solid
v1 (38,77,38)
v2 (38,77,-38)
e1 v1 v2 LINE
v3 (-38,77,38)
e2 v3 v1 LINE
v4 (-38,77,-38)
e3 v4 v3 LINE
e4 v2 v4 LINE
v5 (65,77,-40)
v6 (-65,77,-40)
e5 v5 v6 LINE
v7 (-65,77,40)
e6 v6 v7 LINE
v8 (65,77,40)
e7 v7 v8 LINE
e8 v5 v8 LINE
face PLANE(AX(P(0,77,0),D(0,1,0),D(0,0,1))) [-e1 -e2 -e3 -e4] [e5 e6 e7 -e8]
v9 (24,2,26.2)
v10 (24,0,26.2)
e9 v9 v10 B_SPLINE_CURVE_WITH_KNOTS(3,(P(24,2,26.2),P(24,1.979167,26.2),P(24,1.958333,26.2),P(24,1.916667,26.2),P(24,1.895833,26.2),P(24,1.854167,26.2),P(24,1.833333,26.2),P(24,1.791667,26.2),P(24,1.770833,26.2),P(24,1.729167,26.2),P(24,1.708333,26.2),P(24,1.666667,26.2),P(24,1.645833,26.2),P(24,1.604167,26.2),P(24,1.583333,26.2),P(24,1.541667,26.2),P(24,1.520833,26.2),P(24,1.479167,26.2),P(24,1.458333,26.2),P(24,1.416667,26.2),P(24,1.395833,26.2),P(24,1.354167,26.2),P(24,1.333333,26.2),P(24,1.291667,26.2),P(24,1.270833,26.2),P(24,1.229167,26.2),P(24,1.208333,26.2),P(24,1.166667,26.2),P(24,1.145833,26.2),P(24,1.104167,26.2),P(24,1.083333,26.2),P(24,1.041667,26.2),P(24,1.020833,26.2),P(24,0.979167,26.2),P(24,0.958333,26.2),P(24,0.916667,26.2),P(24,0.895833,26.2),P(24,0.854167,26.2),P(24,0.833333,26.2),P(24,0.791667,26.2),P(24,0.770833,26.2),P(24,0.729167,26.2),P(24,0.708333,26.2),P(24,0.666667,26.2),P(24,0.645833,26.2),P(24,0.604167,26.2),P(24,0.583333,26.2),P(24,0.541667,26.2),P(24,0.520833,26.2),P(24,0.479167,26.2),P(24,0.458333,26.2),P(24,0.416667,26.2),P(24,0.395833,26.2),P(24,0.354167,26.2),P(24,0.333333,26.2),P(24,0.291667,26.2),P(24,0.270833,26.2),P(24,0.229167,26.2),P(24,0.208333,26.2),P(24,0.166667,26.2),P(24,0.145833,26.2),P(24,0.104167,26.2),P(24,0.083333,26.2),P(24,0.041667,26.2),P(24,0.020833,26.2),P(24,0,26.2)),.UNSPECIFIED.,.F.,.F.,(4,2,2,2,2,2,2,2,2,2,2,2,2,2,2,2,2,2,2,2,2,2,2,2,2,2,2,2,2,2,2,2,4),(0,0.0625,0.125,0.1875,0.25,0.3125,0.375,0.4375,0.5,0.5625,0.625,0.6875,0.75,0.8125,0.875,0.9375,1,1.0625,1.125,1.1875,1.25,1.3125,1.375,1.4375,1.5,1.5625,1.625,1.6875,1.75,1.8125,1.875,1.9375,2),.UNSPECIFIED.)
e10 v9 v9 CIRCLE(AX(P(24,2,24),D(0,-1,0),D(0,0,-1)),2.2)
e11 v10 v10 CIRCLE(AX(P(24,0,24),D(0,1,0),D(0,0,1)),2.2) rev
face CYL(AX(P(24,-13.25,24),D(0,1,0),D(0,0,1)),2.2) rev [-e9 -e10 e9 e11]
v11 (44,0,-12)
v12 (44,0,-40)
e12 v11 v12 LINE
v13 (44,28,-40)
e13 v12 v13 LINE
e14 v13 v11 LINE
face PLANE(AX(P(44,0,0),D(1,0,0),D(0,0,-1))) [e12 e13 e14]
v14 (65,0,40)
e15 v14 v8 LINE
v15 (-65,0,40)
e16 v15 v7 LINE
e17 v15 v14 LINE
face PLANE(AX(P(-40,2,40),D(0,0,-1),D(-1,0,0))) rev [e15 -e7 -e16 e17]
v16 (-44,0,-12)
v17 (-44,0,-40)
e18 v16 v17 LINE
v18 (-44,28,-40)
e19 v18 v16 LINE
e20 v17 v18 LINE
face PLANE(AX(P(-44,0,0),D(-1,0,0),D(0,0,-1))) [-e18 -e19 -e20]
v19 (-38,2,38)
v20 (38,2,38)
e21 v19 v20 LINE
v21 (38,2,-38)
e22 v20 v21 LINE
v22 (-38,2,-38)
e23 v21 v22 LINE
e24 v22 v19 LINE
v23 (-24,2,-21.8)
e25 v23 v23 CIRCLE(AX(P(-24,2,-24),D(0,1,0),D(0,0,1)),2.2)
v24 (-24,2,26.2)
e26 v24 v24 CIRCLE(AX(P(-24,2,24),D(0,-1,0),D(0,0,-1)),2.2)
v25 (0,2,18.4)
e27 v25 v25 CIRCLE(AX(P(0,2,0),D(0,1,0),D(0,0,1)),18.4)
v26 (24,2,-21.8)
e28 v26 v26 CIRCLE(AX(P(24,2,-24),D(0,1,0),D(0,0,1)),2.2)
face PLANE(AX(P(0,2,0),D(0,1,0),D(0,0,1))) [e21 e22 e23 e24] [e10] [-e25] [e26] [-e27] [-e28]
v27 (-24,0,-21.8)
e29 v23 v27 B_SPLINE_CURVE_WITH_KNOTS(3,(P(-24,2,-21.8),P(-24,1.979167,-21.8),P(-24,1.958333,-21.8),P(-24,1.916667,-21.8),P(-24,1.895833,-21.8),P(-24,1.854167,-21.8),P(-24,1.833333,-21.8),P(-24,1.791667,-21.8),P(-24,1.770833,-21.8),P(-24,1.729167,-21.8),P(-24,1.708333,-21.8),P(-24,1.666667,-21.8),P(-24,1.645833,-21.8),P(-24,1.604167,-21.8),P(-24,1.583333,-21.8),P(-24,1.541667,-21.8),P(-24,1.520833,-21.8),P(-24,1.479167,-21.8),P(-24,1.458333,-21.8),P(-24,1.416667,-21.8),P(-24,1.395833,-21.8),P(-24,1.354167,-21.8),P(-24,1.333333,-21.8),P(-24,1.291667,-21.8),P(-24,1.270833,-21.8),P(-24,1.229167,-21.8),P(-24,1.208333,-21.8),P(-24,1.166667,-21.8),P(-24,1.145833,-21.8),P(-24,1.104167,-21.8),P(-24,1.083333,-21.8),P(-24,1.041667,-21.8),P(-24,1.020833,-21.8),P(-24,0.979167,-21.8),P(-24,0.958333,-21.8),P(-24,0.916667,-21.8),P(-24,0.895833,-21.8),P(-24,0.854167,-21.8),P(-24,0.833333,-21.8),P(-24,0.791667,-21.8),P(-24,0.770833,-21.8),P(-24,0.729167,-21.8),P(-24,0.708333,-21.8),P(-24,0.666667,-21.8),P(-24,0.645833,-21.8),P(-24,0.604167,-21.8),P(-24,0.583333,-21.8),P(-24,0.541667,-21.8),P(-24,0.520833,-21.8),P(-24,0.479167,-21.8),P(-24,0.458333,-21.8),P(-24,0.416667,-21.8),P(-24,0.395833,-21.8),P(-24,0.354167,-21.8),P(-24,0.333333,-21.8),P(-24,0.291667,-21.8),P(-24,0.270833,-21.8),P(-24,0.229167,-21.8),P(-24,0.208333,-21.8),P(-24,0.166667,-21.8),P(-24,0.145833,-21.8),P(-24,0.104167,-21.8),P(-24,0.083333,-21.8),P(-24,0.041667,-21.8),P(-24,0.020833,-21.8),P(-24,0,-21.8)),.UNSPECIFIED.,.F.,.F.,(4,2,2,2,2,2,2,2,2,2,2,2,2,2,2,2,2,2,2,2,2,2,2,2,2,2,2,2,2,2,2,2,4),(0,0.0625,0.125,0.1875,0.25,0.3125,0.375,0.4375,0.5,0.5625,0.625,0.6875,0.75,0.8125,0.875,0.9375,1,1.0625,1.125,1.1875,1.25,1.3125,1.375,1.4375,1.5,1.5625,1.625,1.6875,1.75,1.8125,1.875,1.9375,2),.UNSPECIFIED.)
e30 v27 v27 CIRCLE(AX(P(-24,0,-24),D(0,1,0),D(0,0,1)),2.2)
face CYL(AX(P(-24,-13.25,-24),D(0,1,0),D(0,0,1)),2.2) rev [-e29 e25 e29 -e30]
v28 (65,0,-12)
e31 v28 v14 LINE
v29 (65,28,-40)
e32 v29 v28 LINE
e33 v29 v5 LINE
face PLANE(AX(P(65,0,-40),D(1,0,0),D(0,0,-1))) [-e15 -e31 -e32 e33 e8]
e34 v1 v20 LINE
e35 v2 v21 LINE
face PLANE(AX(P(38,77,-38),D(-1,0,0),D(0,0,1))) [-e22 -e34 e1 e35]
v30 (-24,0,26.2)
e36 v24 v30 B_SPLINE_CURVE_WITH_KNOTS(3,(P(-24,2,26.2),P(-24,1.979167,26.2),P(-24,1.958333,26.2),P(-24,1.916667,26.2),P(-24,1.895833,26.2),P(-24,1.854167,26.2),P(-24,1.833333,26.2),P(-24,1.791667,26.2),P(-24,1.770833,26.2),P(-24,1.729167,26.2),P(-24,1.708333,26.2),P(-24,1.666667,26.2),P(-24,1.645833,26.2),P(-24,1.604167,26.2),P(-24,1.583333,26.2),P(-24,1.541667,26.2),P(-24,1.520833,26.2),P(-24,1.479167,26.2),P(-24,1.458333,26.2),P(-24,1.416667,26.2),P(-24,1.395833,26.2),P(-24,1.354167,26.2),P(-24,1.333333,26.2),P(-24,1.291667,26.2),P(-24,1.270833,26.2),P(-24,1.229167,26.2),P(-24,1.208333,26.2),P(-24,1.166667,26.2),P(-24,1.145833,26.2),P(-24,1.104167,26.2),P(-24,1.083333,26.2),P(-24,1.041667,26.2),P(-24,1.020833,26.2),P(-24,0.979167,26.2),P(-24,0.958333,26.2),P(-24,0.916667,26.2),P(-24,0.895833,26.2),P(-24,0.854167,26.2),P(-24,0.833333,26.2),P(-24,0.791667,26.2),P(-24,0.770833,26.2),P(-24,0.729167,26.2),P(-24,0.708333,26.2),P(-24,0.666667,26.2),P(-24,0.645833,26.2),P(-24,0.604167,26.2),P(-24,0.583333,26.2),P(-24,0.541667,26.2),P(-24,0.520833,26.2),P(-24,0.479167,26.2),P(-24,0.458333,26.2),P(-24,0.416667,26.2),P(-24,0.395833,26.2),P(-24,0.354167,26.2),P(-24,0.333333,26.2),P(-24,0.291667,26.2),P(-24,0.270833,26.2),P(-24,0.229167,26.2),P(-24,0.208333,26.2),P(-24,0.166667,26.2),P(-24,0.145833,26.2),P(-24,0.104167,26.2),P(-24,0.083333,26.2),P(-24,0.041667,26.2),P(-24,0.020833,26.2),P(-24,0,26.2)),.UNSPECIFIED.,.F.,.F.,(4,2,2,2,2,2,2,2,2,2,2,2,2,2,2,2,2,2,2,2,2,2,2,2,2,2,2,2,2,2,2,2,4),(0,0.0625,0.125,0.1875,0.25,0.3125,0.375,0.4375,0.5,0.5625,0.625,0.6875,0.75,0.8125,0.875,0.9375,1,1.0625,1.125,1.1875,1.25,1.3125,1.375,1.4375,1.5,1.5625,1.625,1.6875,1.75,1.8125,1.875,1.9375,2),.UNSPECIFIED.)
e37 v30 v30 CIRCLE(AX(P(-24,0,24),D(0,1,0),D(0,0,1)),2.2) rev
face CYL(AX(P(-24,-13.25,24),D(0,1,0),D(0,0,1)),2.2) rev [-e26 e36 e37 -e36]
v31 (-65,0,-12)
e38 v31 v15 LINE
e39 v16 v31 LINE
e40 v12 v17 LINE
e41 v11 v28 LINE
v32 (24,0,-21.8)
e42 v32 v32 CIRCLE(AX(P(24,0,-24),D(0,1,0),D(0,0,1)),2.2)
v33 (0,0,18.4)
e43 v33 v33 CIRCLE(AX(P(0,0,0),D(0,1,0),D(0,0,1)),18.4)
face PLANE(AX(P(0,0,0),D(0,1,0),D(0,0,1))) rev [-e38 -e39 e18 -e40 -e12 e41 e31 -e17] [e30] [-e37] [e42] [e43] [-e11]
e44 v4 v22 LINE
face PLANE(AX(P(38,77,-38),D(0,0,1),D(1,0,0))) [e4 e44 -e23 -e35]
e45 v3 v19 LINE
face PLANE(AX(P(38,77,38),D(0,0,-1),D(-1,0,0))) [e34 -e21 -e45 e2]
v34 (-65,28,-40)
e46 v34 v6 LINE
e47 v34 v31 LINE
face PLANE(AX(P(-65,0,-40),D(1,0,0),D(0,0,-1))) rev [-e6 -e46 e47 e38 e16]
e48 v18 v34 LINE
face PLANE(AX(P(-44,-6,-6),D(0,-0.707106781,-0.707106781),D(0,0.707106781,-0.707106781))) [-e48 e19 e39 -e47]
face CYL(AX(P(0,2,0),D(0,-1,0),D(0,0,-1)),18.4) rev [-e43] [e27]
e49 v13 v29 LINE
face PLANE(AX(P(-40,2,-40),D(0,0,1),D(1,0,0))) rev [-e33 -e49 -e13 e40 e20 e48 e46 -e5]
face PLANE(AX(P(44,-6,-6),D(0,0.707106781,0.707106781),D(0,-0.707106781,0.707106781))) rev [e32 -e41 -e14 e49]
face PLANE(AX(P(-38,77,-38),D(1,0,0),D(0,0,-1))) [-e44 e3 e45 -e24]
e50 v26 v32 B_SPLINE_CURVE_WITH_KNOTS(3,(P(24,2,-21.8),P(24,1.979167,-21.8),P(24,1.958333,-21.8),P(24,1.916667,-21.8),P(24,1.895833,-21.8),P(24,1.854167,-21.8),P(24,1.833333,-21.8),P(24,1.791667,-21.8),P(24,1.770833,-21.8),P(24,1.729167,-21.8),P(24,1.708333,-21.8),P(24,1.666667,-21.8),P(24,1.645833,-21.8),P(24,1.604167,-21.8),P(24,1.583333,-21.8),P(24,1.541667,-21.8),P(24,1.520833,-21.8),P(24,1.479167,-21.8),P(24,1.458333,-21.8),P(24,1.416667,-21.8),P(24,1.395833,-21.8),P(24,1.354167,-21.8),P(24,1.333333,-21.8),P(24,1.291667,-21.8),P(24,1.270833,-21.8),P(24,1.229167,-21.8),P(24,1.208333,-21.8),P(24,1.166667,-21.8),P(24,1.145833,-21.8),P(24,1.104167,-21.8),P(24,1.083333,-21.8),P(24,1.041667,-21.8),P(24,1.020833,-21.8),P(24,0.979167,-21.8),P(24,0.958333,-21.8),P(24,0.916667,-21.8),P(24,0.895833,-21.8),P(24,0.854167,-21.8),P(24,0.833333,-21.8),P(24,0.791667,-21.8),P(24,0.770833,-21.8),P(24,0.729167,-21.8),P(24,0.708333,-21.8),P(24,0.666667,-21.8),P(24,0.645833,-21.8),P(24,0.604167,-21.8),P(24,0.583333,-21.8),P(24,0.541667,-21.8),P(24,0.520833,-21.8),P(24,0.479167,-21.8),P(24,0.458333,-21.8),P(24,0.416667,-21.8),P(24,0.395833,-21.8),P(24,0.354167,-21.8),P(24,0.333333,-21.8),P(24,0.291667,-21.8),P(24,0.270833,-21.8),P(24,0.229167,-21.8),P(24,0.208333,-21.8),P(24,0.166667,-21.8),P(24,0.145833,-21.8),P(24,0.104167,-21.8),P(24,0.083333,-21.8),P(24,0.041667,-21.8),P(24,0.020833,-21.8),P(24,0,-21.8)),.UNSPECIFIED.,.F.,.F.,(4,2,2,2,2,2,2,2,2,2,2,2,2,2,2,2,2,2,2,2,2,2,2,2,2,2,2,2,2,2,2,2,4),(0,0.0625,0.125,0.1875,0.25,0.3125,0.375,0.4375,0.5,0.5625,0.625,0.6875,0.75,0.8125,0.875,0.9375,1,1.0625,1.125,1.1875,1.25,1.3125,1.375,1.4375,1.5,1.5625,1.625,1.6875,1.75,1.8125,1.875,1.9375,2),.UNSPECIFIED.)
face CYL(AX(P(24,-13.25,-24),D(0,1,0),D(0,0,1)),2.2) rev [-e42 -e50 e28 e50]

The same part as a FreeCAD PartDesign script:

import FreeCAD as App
import Part
import Sketcher

V = App.Vector


def add_polygon(sketch, points):
    """Adds a closed chain of lines whose ends are joined by coincident constraints."""
    first, n = sketch.GeometryCount, len(points)
    for a, b in zip(points, points[1:] + points[:1]):
        sketch.addGeometry(Part.LineSegment(App.Vector(*a, 0), App.Vector(*b, 0)), False)
    for i in range(n):
        sketch.addConstraint(Sketcher.Constraint("Coincident", first + i, 2, first + (i + 1) % n, 1))

doc = App.newDocument("Part")
body = doc.addObject("PartDesign::Body", "Body")

# Sketch on XZ plane
sketch1 = doc.addObject("Sketcher::SketchObject", "Sketch")
body.addObject(sketch1)
sketch1.AttachmentSupport = (doc.XZ_Plane, [""])
sketch1.MapMode = "FlatFace"
add_polygon(sketch1, [(-40, -40), (-40, 40), (40, 40), (40, -40)])  # lines 0-3
sketch1.addGeometry(Part.Circle(V(0, 0, 0), V(0, 0, 1), 18), False)  # 4
sketch1.addConstraint(Sketcher.Constraint("Vertical", 0))
sketch1.addConstraint(Sketcher.Constraint("Horizontal", 1))
sketch1.addConstraint(Sketcher.Constraint("Vertical", 2))
sketch1.addConstraint(Sketcher.Constraint("Horizontal", 3))
sketch1.addConstraint(Sketcher.Constraint("Coincident", 4, 3, -1, 1))
sketch1.addConstraint(Sketcher.Constraint("Symmetric", 0, 2, 2, 2, -1, 1))
sketch1.addConstraint(Sketcher.Constraint("Equal", 3, 0))
sketch1.addConstraint(Sketcher.Constraint("Diameter", 4, 36.8))
sketch1.addConstraint(Sketcher.Constraint("DistanceX", 1, 1, 1, 2, 80.0))
pad1 = doc.addObject("PartDesign::Pad", "Pad")
body.addObject(pad1)
pad1.Profile = sketch1
pad1.Length = 2
pad1.Reversed = True

# Sketch on XZ plane
sketch2 = doc.addObject("Sketcher::SketchObject", "Sketch001")
body.addObject(sketch2)
sketch2.AttachmentSupport = (doc.XZ_Plane, [""])
sketch2.MapMode = "FlatFace"
sketch2.AttachmentOffset = App.Placement(V(0, 0, -2), App.Rotation())
add_polygon(sketch2, [(40, 21.5), (40, 40), (44, 40), (44, 21.5)])  # lines 0-3
sketch2.addConstraint(Sketcher.Constraint("Vertical", 0))
sketch2.addConstraint(Sketcher.Constraint("Horizontal", 1))
sketch2.addConstraint(Sketcher.Constraint("Vertical", 2))
sketch2.addConstraint(Sketcher.Constraint("Horizontal", 3))
sketch2.addConstraint(Sketcher.Constraint("DistanceX", 1, 1, 1, 2, 4.0))
sketch2.addConstraint(Sketcher.Constraint("DistanceY", 0, 1, 0, 2, 18.5))
sketch2.addConstraint(Sketcher.Constraint("DistanceX", -1, 1, 0, 2, 40.0))
sketch2.addConstraint(Sketcher.Constraint("DistanceY", -1, 1, 0, 2, 40.0))
pad2 = doc.addObject("PartDesign::Pad", "Pad001")
body.addObject(pad2)
pad2.Profile = sketch2
pad2.Length = 15.25

# Sketch on YZ plane
sketch3 = doc.addObject("Sketcher::SketchObject", "Sketch002")
body.addObject(sketch3)
sketch3.AttachmentSupport = (doc.YZ_Plane, [""])
sketch3.MapMode = "FlatFace"
sketch3.AttachmentOffset = App.Placement(V(0, 0, 44), App.Rotation())
sketch3.addGeometry(Part.Circle(V(-8.1, 30.8, 0), V(0, 0, 1), 2.2), False)
sketch3.addConstraint(Sketcher.Constraint("Diameter", 0, 4.4))
sketch3.addConstraint(Sketcher.Constraint("DistanceY", -1, 1, 0, 3, 30.75))
sketch3.addConstraint(Sketcher.Constraint("DistanceX", 0, 3, -1, 1, 8.125))
pocket1 = doc.addObject("PartDesign::Pocket", "Pocket")
body.addObject(pocket1)
pocket1.Profile = sketch3
pocket1.Type = "ThroughAll"
doc.recompute()

mirrored = doc.addObject("PartDesign::Mirrored", "Mirrored")
body.addObject(mirrored)
mirrored.Originals = [pad2, pocket1]
mirrored.MirrorPlane = (doc.YZ_Plane, [""])
body.Tip = mirrored
doc.recompute()

mirrored2 = doc.addObject("PartDesign::Mirrored", "Mirrored001")
body.addObject(mirrored2)
mirrored2.Originals = [pad2, pocket1]
mirrored2.MirrorPlane = (doc.XY_Plane, [""])
body.Tip = mirrored2

# Sketch on XZ plane
sketch4 = doc.addObject("Sketcher::SketchObject", "Sketch003")
body.addObject(sketch4)
sketch4.AttachmentSupport = (doc.XZ_Plane, [""])
sketch4.MapMode = "FlatFace"
sketch4.AttachmentOffset = App.Placement(V(0, 0, -2), App.Rotation())
add_polygon(sketch4, [(-40, -21.5), (-40, -40), (-44, -40), (-44, -21.5)])  # lines 0-3
sketch4.addConstraint(Sketcher.Constraint("Vertical", 0))
sketch4.addConstraint(Sketcher.Constraint("Horizontal", 1))
sketch4.addConstraint(Sketcher.Constraint("Vertical", 2))
sketch4.addConstraint(Sketcher.Constraint("Horizontal", 3))
sketch4.addConstraint(Sketcher.Constraint("DistanceX", 1, 2, 1, 1, 4.0))
sketch4.addConstraint(Sketcher.Constraint("DistanceY", 0, 2, 0, 1, 18.5))
sketch4.addConstraint(Sketcher.Constraint("DistanceX", 0, 2, -1, 1, 40.0))
sketch4.addConstraint(Sketcher.Constraint("DistanceY", 0, 2, -1, 1, 40.0))
pad3 = doc.addObject("PartDesign::Pad", "Pad002")
body.addObject(pad3)
pad3.Profile = sketch4
pad3.Length = 15.25

# Sketch on YZ plane
sketch5 = doc.addObject("Sketcher::SketchObject", "Sketch004")
body.addObject(sketch5)
sketch5.AttachmentSupport = (doc.YZ_Plane, [""])
sketch5.MapMode = "FlatFace"
sketch5.AttachmentOffset = App.Placement(V(0, 0, -44), App.Rotation())
sketch5.addGeometry(Part.Circle(V(-8.1, -30.8, 0), V(0, 0, 1), 2.2), False)
sketch5.addConstraint(Sketcher.Constraint("Diameter", 0, 4.4))
sketch5.addConstraint(Sketcher.Constraint("DistanceY", 0, 3, -1, 1, 30.75))
sketch5.addConstraint(Sketcher.Constraint("DistanceX", 0, 3, -1, 1, 8.125))
pocket2 = doc.addObject("PartDesign::Pocket", "Pocket001")
body.addObject(pocket2)
pocket2.Profile = sketch5
pocket2.Type = "ThroughAll"
pocket2.Reversed = True

# Sketch on XZ plane
sketch6 = doc.addObject("Sketcher::SketchObject", "Sketch005")
body.addObject(sketch6)
sketch6.AttachmentSupport = (doc.XZ_Plane, [""])
sketch6.MapMode = "FlatFace"
sketch6.AttachmentOffset = App.Placement(V(0, 0, -2), App.Rotation())
sketch6.addGeometry(Part.Circle(V(-24, -24, 0), V(0, 0, 1), 2.2), False)
sketch6.addGeometry(Part.Circle(V(24, -24, 0), V(0, 0, 1), 2.2), False)
sketch6.addConstraint(Sketcher.Constraint("Equal", 0, 1))
sketch6.addConstraint(Sketcher.Constraint("Symmetric", 0, 3, 1, 3, -2))
sketch6.addConstraint(Sketcher.Constraint("Diameter", 0, 4.4))
sketch6.addConstraint(Sketcher.Constraint("DistanceX", 0, 3, -1, 1, 24.0))
sketch6.addConstraint(Sketcher.Constraint("DistanceY", 0, 3, -1, 1, 24.0))
pocket3 = doc.addObject("PartDesign::Pocket", "Pocket002")
body.addObject(pocket3)
pocket3.Profile = sketch6
pocket3.Type = "ThroughAll"
pocket3.Reversed = True
doc.recompute()

mirrored3 = doc.addObject("PartDesign::Mirrored", "Mirrored002")
body.addObject(mirrored3)
mirrored3.Originals = [pocket3]
mirrored3.MirrorPlane = (doc.XY_Plane, [""])
body.Tip = mirrored3

# Sketch on XY plane
sketch7 = doc.addObject("Sketcher::SketchObject", "Sketch006")
body.addObject(sketch7)
sketch7.AttachmentSupport = (doc.XY_Plane, [""])
sketch7.MapMode = "FlatFace"
sketch7.AttachmentOffset = App.Placement(V(0, 0, 40), App.Rotation())
add_polygon(sketch7, [(-44, 2), (-44, -13.2), (-40, -13.2), (-40, 2)])  # lines 0-3
add_polygon(sketch7, [(40, 2), (40, -13.2), (44, -13.2), (44, 2)])  # lines 4-7
sketch7.addConstraint(Sketcher.Constraint("Vertical", 0))
sketch7.addConstraint(Sketcher.Constraint("Horizontal", 1))
sketch7.addConstraint(Sketcher.Constraint("Vertical", 2))
sketch7.addConstraint(Sketcher.Constraint("Horizontal", 3))
sketch7.addConstraint(Sketcher.Constraint("Vertical", 4))
sketch7.addConstraint(Sketcher.Constraint("Horizontal", 5))
sketch7.addConstraint(Sketcher.Constraint("Vertical", 6))
sketch7.addConstraint(Sketcher.Constraint("Horizontal", 7))
sketch7.addConstraint(Sketcher.Constraint("Symmetric", 1, 2, 4, 2, -2))
sketch7.addConstraint(Sketcher.Constraint("Symmetric", 3, 2, 6, 2, -2))
sketch7.addConstraint(Sketcher.Constraint("DistanceX", 1, 1, 1, 2, 4.0))
sketch7.addConstraint(Sketcher.Constraint("DistanceX", 0, 2, -1, 1, 44.0))
sketch7.addConstraint(Sketcher.Constraint("DistanceY", -1, 1, 2, 2, 2.0))
sketch7.addConstraint(Sketcher.Constraint("DistanceY", 0, 2, 0, 1, 15.25))
pocket4 = doc.addObject("PartDesign::Pocket", "Pocket003")
body.addObject(pocket4)
pocket4.Profile = sketch7
pocket4.Type = "ThroughAll"

# Sketch on XZ plane
sketch8 = doc.addObject("Sketcher::SketchObject", "Sketch007")
body.addObject(sketch8)
sketch8.AttachmentSupport = (doc.XZ_Plane, [""])
sketch8.MapMode = "FlatFace"
sketch8.AttachmentOffset = App.Placement(V(0, 0, -2), App.Rotation())
add_polygon(sketch8, [(-40, -40), (-40, 40), (40, 40), (40, -40)])  # lines 0-3
add_polygon(sketch8, [(38, 38), (-38, 38), (-38, -38), (38, -38)])  # lines 4-7
sketch8.addConstraint(Sketcher.Constraint("Vertical", 0))
sketch8.addConstraint(Sketcher.Constraint("Horizontal", 1))
sketch8.addConstraint(Sketcher.Constraint("Vertical", 2))
sketch8.addConstraint(Sketcher.Constraint("Horizontal", 3))
sketch8.addConstraint(Sketcher.Constraint("Horizontal", 4))
sketch8.addConstraint(Sketcher.Constraint("Vertical", 5))
sketch8.addConstraint(Sketcher.Constraint("Horizontal", 6))
sketch8.addConstraint(Sketcher.Constraint("Vertical", 7))
sketch8.addConstraint(Sketcher.Constraint("Symmetric", 0, 2, 2, 2, -1, 1))
sketch8.addConstraint(Sketcher.Constraint("Symmetric", 4, 2, 6, 2, -1, 1))
sketch8.addConstraint(Sketcher.Constraint("Equal", 3, 0))
sketch8.addConstraint(Sketcher.Constraint("Equal", 6, 5))
sketch8.addConstraint(Sketcher.Constraint("DistanceX", 1, 1, 1, 2, 80.0))
sketch8.addConstraint(Sketcher.Constraint("DistanceX", 4, 2, 4, 1, 76.0))
pad4 = doc.addObject("PartDesign::Pad", "Pad003")
body.addObject(pad4)
pad4.Profile = sketch8
pad4.Length = 75
pad4.Reversed = True

# Sketch on XY plane
sketch9 = doc.addObject("Sketcher::SketchObject", "Sketch008")
body.addObject(sketch9)
sketch9.AttachmentSupport = (doc.XY_Plane, [""])
sketch9.MapMode = "FlatFace"
sketch9.AttachmentOffset = App.Placement(V(0, 0, 40), App.Rotation())
add_polygon(sketch9, [(-65, 77), (-65, 0), (-40, 0), (-40, 77)])  # lines 0-3
add_polygon(sketch9, [(40, 77), (40, 0), (65, 0), (65, 77)])  # lines 4-7
sketch9.addConstraint(Sketcher.Constraint("Vertical", 0))
sketch9.addConstraint(Sketcher.Constraint("Horizontal", 1))
sketch9.addConstraint(Sketcher.Constraint("Vertical", 2))
sketch9.addConstraint(Sketcher.Constraint("Horizontal", 3))
sketch9.addConstraint(Sketcher.Constraint("Vertical", 4))
sketch9.addConstraint(Sketcher.Constraint("Horizontal", 5))
sketch9.addConstraint(Sketcher.Constraint("Vertical", 6))
sketch9.addConstraint(Sketcher.Constraint("Horizontal", 7))
sketch9.addConstraint(Sketcher.Constraint("Symmetric", 1, 2, 4, 2, -1, 1))
sketch9.addConstraint(Sketcher.Constraint("Symmetric", 0, 2, 5, 2, -2))
sketch9.addConstraint(Sketcher.Constraint("Horizontal", 3, 2, 6, 2))
sketch9.addConstraint(Sketcher.Constraint("DistanceX", 1, 1, 1, 2, 25.0))
sketch9.addConstraint(Sketcher.Constraint("DistanceY", 0, 2, 0, 1, 77.0))
sketch9.addConstraint(Sketcher.Constraint("DistanceX", 0, 2, -1, 1, 65.0))
pad5 = doc.addObject("PartDesign::Pad", "Pad004")
body.addObject(pad5)
pad5.Profile = sketch9
pad5.Length = 80
pad5.Reversed = True

# Sketch on YZ plane
sketch10 = doc.addObject("Sketcher::SketchObject", "Sketch009")
body.addObject(sketch10)
sketch10.AttachmentSupport = (doc.YZ_Plane, [""])
sketch10.MapMode = "FlatFace"
sketch10.AttachmentOffset = App.Placement(V(0, 0, 65), App.Rotation())
add_polygon(sketch10, [(0, -40), (28, -40), (0, -12)])  # lines 0-2
sketch10.addConstraint(Sketcher.Constraint("Horizontal", 0))
sketch10.addConstraint(Sketcher.Constraint("Vertical", 2))
sketch10.addConstraint(Sketcher.Constraint("PointOnObject", 1, 2, -2))
sketch10.addConstraint(Sketcher.Constraint("Equal", 0, 2))
sketch10.addConstraint(Sketcher.Constraint("DistanceX", 0, 1, 0, 2, 28.0))
sketch10.addConstraint(Sketcher.Constraint("DistanceY", 0, 2, -1, 1, 40.0))
pocket5 = doc.addObject("PartDesign::Pocket", "Pocket004")
body.addObject(pocket5)
pocket5.Profile = sketch10
pocket5.Length = 21
doc.recompute()

mirrored4 = doc.addObject("PartDesign::Mirrored", "Mirrored003")
body.addObject(mirrored4)
mirrored4.Originals = [pocket5]
mirrored4.MirrorPlane = (doc.YZ_Plane, [""])
body.Tip = mirrored4

doc.recompute()
